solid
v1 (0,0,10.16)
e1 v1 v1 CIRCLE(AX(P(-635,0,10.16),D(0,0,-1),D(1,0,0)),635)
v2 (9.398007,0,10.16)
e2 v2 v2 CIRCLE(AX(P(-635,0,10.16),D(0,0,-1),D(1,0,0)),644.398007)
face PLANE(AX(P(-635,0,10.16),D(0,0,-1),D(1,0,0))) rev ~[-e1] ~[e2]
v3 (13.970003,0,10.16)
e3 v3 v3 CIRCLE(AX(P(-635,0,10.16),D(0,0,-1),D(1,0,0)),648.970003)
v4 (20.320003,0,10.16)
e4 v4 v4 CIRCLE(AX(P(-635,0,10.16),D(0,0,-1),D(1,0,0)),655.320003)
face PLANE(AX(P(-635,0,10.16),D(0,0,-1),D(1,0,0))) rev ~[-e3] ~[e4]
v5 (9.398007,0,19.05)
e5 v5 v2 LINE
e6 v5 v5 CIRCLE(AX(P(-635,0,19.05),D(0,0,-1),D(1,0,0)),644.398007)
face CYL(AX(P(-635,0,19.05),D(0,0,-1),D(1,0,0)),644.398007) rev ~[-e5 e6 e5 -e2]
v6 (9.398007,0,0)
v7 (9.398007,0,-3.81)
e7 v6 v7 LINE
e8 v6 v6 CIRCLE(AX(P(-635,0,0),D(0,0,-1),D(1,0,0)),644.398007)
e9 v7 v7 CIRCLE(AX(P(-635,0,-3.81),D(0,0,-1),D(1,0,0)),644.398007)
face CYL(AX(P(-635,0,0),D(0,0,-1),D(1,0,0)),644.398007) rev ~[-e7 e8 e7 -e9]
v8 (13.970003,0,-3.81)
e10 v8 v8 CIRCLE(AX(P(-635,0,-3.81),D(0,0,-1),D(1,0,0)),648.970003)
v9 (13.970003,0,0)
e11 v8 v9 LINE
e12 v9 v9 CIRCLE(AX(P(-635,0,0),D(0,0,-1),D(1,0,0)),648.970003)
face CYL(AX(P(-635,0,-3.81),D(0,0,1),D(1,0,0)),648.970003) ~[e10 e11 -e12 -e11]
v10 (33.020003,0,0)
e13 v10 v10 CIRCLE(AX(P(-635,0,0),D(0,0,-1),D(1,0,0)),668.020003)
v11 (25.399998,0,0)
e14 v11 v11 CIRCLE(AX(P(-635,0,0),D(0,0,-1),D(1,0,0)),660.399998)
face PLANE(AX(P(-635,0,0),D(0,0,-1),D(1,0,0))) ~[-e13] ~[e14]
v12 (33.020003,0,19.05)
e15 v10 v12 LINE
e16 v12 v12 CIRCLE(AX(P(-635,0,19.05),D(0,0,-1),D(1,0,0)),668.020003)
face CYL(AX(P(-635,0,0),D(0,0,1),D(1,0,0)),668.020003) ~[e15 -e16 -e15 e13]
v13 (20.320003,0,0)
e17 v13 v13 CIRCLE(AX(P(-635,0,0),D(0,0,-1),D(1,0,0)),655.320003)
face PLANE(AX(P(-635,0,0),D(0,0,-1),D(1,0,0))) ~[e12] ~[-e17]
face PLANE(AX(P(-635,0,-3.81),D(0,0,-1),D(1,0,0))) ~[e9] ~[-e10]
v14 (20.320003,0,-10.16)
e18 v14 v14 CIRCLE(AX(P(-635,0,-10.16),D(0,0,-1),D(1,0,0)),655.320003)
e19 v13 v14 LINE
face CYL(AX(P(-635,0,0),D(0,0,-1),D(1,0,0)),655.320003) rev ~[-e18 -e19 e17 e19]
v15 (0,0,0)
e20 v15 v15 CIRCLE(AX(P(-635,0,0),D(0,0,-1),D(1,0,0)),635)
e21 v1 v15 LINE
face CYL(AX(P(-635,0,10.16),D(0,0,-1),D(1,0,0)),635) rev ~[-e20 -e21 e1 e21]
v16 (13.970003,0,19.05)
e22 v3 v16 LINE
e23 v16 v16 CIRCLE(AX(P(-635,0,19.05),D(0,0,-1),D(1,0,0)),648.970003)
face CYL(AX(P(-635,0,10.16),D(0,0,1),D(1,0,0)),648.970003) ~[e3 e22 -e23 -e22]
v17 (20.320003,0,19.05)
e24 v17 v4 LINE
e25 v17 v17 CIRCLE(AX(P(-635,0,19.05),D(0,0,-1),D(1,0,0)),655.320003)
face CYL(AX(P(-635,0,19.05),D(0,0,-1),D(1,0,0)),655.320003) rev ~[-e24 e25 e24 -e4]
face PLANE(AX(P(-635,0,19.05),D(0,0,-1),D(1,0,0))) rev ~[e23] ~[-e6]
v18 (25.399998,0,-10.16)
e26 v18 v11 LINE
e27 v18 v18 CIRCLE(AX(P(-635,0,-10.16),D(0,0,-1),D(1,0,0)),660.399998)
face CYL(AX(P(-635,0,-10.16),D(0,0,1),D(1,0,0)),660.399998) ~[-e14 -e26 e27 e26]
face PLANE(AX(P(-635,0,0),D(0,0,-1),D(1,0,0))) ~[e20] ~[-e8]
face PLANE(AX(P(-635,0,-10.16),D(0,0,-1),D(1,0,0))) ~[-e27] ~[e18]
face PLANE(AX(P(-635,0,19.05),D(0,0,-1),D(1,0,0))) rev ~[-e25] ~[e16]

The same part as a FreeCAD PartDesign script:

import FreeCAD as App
import Part
import Sketcher
from FreeCAD import Vector
Q = App.Units.Quantity

doc = App.newDocument("Part")
body = doc.addObject("PartDesign::Body", "Body")

sketch1 = body.newObject("Sketcher::SketchObject", "Sketch")
sketch1.AttachmentSupport = (doc.getObject("XZ_Plane"), [""])
sketch1.MapMode = "FlatFace"
sketch1.addGeometry([
    Part.LineSegment(Vector(0, 10.2, 0), Vector(0, 0, 0)),
    Part.LineSegment(Vector(0, 0, 0), Vector(9.4, 0, 0)),
    Part.LineSegment(Vector(9.4, 0, 0), Vector(9.4, -3.8, 0)),
    Part.LineSegment(Vector(9.4, -3.8, 0), Vector(14, -3.8, 0)),
    Part.LineSegment(Vector(14, -3.8, 0), Vector(14, 0, 0)),
    Part.LineSegment(Vector(14, 0, 0), Vector(20.3, 0, 0)),
    Part.LineSegment(Vector(20.3, 0, 0), Vector(20.3, -10.2, 0)),
    Part.LineSegment(Vector(20.3, -10.2, 0), Vector(25.4, -10.2, 0)),
    Part.LineSegment(Vector(25.4, -10.2, 0), Vector(25.4, 0, 0)),
    Part.LineSegment(Vector(25.4, 0, 0), Vector(33, 0, 0)),
    Part.LineSegment(Vector(33, 0, 0), Vector(33, 19.1, 0)),
    Part.LineSegment(Vector(33, 19.1, 0), Vector(20.3, 19.1, 0)),
    Part.LineSegment(Vector(20.3, 19.1, 0), Vector(20.3, 10.2, 0)),
    Part.LineSegment(Vector(20.3, 10.2, 0), Vector(14, 10.2, 0)),
    Part.LineSegment(Vector(14, 10.2, 0), Vector(14, 19.1, 0)),
    Part.LineSegment(Vector(14, 19.1, 0), Vector(9.4, 19.1, 0)),
    Part.LineSegment(Vector(9.4, 19.1, 0), Vector(9.4, 10.2, 0)),
    Part.LineSegment(Vector(9.4, 10.2, 0), Vector(0, 10.2, 0)),
], False)
sketch1.addGeometry(Part.LineSegment(Vector(-635, 19.1, 0), Vector(-635, -10.2, 0)), True)
sketch1.addConstraint([
    Sketcher.Constraint("Coincident", 0, 2, 1, 1),
    Sketcher.Constraint("Coincident", 1, 2, 2, 1),
    Sketcher.Constraint("Coincident", 2, 2, 3, 1),
    Sketcher.Constraint("Coincident", 3, 2, 4, 1),
    Sketcher.Constraint("Coincident", 4, 2, 5, 1),
    Sketcher.Constraint("Coincident", 5, 2, 6, 1),
    Sketcher.Constraint("Coincident", 6, 2, 7, 1),
    Sketcher.Constraint("Coincident", 7, 2, 8, 1),
    Sketcher.Constraint("Coincident", 8, 2, 9, 1),
    Sketcher.Constraint("Coincident", 9, 2, 10, 1),
    Sketcher.Constraint("Coincident", 10, 2, 11, 1),
    Sketcher.Constraint("Coincident", 11, 2, 12, 1),
    Sketcher.Constraint("Coincident", 12, 2, 13, 1),
    Sketcher.Constraint("Coincident", 13, 2, 14, 1),
    Sketcher.Constraint("Coincident", 14, 2, 15, 1),
    Sketcher.Constraint("Coincident", 15, 2, 16, 1),
    Sketcher.Constraint("Coincident", 16, 2, 17, 1),
    Sketcher.Constraint("Coincident", 17, 2, 0, 1),
    Sketcher.Constraint("Vertical", 0),
    Sketcher.Constraint("Horizontal", 1),
    Sketcher.Constraint("Vertical", 2),
    Sketcher.Constraint("Horizontal", 3),
    Sketcher.Constraint("Vertical", 4),
    Sketcher.Constraint("Horizontal", 5),
    Sketcher.Constraint("Vertical", 6),
    Sketcher.Constraint("Horizontal", 7),
    Sketcher.Constraint("Vertical", 8),
    Sketcher.Constraint("Horizontal", 9),
    Sketcher.Constraint("Vertical", 10),
    Sketcher.Constraint("Horizontal", 11),
    Sketcher.Constraint("Vertical", 12),
    Sketcher.Constraint("Horizontal", 13),
    Sketcher.Constraint("Vertical", 14),
    Sketcher.Constraint("Horizontal", 15),
    Sketcher.Constraint("Vertical", 16),
    Sketcher.Constraint("Horizontal", 17),
    Sketcher.Constraint("Vertical", 18),
    Sketcher.Constraint("Coincident", 0, 2, -1, 1),
    Sketcher.Constraint("Symmetric", 6, 2, 12, 2, -1),
    Sketcher.Constraint("PointOnObject", 4, 2, -1),
    Sketcher.Constraint("PointOnObject", 8, 2, -1),
    Sketcher.Constraint("Horizontal", 11, 2, 14, 2),
    Sketcher.Constraint("Horizontal", 13, 2, 16, 2),
    Sketcher.Constraint("Horizontal", 15, 2, 18, 1),
    Sketcher.Constraint("Horizontal", 7, 2, 18, 2),
    Sketcher.Constraint("Vertical", 4, 2, 13, 2),
    Sketcher.Constraint("Vertical", 2, 2, 15, 2),
    Sketcher.Constraint("DistanceX", 7, 1, 7, 2, Q("0.1999998 in")),
    Sketcher.Constraint("DistanceX", 9, 1, 9, 2, Q("0.3000002 in")),
    Sketcher.Constraint("DistanceY", 0, 2, 0, 1, Q("0.4 in")),
    Sketcher.Constraint("DistanceX", -1, 1, 7, 2, Q("0.9999999 in")),
    Sketcher.Constraint("DistanceX", 18, 1, -1, 1, Q("25 in")),
    Sketcher.Constraint("DistanceX", 3, 1, 3, 2, Q("0.1799998 in")),
    Sketcher.Constraint("DistanceX", 5, 1, 5, 2, Q("0.25 in")),
    Sketcher.Constraint("DistanceY", 2, 2, 2, 1, Q("0.15 in")),
    Sketcher.Constraint("DistanceY", 10, 1, 10, 2, Q("0.75 in")),
])
revolution = body.newObject("PartDesign::Revolution", "Revolution")
revolution.Profile = sketch1
revolution.ReferenceAxis = (sketch1, ["Axis0"])
revolution.Angle = 360

doc.recompute()
